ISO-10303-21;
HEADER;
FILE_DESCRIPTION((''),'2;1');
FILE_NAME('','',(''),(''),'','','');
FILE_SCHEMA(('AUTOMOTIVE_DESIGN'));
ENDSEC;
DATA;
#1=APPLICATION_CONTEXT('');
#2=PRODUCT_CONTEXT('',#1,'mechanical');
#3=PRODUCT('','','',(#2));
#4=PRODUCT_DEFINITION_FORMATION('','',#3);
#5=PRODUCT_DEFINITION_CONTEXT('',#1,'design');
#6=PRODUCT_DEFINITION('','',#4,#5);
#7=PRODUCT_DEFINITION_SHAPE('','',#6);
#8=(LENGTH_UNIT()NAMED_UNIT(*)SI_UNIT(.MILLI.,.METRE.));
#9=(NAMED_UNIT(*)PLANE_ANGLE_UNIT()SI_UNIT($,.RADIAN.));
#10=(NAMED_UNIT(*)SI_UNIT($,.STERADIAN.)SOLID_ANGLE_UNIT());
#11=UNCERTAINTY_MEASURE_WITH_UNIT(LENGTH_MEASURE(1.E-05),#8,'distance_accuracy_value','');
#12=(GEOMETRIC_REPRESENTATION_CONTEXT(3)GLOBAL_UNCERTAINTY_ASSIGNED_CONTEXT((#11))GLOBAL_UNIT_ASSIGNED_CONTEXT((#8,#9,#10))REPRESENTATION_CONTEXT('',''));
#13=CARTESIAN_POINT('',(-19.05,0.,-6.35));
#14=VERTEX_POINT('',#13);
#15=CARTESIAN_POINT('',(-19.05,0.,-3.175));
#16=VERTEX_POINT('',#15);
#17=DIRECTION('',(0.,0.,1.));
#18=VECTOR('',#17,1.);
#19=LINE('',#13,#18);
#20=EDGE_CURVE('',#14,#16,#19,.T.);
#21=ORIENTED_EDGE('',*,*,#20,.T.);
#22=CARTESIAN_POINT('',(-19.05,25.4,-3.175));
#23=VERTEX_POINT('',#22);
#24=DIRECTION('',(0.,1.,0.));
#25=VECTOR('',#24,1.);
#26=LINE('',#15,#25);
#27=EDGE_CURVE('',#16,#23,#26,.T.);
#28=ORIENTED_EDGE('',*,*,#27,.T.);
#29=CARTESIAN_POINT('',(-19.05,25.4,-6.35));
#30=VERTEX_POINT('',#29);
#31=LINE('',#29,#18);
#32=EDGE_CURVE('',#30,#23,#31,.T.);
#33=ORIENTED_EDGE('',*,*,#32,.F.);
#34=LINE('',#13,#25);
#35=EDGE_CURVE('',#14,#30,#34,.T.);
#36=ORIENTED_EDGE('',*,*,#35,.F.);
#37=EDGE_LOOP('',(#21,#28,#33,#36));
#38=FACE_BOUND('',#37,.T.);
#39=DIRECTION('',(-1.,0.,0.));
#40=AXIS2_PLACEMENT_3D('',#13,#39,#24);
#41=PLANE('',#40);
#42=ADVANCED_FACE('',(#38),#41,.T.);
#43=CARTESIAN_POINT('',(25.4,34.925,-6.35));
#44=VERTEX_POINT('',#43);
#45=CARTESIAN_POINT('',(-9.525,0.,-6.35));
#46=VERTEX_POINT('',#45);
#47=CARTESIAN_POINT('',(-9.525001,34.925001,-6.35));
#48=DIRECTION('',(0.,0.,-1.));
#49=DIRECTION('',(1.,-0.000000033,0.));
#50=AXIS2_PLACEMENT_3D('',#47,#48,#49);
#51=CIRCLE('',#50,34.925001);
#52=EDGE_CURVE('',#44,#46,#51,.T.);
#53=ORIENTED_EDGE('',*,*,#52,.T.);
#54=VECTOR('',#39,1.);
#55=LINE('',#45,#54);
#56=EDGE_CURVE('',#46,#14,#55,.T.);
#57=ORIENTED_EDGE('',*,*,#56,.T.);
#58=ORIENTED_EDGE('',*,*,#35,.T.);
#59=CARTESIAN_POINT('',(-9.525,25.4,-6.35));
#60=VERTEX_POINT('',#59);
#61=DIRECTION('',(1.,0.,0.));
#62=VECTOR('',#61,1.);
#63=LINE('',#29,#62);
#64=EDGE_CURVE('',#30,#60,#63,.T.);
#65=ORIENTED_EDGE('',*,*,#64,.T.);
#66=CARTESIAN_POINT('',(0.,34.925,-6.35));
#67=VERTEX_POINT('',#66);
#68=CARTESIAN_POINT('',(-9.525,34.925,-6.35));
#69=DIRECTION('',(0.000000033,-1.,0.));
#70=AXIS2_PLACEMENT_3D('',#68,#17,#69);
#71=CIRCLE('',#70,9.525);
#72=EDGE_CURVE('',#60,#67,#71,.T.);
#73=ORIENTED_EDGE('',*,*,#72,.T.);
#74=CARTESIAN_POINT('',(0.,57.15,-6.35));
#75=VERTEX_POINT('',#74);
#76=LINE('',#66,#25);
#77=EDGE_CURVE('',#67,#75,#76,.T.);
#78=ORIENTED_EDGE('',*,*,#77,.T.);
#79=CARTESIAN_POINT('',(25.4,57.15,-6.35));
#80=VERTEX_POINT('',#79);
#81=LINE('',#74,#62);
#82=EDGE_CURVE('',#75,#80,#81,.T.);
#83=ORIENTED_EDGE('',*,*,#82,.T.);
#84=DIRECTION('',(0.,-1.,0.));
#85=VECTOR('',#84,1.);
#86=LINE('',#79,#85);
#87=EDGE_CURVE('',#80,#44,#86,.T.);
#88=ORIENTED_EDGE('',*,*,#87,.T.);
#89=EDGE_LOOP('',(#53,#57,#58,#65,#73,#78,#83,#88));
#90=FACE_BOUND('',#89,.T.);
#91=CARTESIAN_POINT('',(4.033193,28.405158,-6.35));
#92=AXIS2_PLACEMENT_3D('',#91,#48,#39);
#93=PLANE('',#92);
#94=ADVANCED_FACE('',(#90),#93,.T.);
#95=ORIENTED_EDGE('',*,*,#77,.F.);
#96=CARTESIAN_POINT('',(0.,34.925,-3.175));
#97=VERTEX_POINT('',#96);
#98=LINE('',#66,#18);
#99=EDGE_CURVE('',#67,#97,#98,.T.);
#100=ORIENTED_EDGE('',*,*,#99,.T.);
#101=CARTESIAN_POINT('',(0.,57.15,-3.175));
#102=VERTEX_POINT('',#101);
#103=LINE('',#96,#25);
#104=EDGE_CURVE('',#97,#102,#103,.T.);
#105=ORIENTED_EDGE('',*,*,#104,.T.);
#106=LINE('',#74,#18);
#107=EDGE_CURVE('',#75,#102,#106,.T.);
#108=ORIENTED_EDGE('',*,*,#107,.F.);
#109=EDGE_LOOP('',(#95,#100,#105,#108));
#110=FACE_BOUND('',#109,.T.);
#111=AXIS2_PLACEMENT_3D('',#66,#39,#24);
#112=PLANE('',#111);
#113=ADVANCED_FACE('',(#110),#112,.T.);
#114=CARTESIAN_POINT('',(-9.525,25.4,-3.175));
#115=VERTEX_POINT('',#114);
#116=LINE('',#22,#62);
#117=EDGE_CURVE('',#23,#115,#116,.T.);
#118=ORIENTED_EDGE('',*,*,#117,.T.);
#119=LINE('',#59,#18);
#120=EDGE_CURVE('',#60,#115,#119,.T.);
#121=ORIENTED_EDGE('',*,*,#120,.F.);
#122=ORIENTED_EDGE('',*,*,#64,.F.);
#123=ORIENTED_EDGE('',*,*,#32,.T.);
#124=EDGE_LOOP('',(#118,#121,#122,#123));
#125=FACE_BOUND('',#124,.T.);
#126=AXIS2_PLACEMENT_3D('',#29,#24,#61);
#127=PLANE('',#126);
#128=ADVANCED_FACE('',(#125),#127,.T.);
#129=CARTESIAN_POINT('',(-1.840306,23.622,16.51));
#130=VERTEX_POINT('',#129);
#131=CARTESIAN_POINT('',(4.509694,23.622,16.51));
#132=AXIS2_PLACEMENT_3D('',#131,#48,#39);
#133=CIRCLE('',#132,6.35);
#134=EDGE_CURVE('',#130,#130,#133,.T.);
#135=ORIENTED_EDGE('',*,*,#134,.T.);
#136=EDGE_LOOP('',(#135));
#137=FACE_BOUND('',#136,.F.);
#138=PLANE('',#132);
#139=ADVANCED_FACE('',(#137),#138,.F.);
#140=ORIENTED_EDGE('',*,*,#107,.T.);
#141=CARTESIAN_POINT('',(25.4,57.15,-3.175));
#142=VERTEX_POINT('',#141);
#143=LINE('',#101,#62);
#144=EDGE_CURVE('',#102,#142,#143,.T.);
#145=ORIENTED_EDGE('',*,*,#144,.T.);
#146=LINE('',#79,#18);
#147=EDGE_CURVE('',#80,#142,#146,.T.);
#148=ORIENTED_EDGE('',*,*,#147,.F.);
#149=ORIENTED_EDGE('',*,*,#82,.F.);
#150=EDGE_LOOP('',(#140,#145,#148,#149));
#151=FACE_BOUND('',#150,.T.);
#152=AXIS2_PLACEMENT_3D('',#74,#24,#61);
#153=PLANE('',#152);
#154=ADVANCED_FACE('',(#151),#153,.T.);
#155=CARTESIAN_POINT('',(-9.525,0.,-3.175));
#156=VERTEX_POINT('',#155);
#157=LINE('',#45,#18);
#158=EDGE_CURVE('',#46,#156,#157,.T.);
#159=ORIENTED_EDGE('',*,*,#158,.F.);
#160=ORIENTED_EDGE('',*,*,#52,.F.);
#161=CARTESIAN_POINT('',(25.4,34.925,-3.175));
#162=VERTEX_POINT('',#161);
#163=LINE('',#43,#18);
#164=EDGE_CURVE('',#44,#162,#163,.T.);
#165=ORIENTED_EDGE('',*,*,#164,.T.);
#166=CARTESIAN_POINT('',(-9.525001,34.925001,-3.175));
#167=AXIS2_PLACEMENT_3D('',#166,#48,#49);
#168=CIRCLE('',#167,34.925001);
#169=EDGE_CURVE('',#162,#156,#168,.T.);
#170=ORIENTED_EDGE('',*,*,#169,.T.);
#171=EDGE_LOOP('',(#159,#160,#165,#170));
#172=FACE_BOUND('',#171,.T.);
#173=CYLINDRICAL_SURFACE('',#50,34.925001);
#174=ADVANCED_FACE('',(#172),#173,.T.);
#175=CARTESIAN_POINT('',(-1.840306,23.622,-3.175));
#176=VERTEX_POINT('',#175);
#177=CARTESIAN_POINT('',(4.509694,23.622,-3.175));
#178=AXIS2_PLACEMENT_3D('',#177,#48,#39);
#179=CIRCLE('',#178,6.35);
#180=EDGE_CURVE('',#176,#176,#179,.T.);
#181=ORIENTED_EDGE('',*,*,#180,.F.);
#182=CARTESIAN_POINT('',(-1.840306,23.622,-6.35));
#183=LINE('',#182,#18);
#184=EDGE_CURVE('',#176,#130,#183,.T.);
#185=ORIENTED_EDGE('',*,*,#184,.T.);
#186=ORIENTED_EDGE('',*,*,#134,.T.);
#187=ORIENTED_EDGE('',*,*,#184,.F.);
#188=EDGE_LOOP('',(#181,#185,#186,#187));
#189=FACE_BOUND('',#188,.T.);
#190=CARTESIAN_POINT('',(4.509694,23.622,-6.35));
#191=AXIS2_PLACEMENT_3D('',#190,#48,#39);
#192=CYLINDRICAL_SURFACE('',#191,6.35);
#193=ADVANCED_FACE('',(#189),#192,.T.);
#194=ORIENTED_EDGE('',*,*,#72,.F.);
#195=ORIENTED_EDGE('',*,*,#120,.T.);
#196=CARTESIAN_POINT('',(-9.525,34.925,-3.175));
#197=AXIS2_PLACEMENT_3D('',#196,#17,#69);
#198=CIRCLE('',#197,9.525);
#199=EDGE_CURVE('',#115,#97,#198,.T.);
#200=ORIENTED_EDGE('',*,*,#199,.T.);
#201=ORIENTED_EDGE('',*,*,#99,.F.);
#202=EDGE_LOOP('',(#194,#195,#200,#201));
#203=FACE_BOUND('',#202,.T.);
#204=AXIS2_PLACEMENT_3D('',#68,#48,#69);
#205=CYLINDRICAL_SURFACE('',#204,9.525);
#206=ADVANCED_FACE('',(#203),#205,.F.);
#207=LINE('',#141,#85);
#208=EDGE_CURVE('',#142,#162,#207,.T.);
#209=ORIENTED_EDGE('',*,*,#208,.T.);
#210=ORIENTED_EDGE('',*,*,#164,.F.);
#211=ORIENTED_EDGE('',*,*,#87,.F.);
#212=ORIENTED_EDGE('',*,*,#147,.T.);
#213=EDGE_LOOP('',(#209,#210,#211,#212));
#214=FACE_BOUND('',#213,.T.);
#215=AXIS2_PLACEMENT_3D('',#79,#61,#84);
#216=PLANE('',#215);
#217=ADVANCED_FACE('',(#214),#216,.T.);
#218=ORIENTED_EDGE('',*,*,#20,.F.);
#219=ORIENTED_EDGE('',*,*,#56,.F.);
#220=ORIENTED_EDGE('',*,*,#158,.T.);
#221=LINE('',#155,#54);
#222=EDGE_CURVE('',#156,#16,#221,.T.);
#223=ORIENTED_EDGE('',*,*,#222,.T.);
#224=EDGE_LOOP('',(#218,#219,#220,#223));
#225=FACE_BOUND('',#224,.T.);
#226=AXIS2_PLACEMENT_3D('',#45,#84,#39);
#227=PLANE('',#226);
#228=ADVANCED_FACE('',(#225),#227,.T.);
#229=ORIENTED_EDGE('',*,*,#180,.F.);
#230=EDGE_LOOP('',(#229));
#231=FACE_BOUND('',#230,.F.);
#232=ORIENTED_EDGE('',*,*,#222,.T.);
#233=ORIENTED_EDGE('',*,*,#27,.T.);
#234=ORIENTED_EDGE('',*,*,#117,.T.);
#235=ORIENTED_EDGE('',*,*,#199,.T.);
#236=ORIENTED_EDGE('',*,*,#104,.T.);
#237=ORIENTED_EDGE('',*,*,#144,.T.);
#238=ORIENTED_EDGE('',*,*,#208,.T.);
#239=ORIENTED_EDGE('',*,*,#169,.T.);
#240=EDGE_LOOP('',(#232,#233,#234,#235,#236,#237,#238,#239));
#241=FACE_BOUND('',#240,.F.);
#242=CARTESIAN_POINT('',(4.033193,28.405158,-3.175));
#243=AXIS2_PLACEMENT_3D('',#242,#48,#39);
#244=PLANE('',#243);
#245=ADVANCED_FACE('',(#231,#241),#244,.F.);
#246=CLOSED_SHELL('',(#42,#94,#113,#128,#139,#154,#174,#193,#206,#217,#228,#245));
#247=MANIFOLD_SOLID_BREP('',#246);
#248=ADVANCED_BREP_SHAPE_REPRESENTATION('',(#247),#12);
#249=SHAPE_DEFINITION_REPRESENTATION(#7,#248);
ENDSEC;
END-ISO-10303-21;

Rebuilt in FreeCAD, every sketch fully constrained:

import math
import FreeCAD as App
import Part
import Sketcher

V = App.Vector
Q = App.Units.Quantity

doc = App.newDocument("Part")
params = doc.addObject("Spreadsheet::Sheet", "Params")
for row, (alias, value) in enumerate([
    ("sketch1_diameter", "0.5 in"),
    ("pad1_length", "0.9 in"),
    ("sketch2_diameter", "0.5 in"),
    ("sketch2_width", "1 in"),
    ("sketch2_radius", "1.375 in"),
    ("sketch2_width2", "0.375 in"),
    ("sketch2_height", "0.875 in"),
    ("pad2_length", "0.125 in"),
], start=1):
    params.set(f"A{row}", alias)
    params.set(f"B{row}", "=" + value)
    params.setAlias(f"B{row}", alias)

body = doc.addObject("PartDesign::Body", "Body")

sketch1 = body.newObject("Sketcher::SketchObject", "Sketch")
sketch1.AttachmentSupport = (doc.getObject("XY_Plane"), [""])
sketch1.MapMode = "FlatFace"
sketch1.addGeometry(Part.Circle(V(-4.509694, 23.622, 0), V(0, 0, 1), 6.35), False)
sketch1.addConstraint([
    Sketcher.Constraint("Diameter", 0, Q("0.5 in")),
    Sketcher.Constraint("DistanceY", -1, 1, 0, 3, Q("0.93 in")),
    Sketcher.Constraint("DistanceX", 0, 3, -1, 1, 4.509694),
])
sketch1.setExpression("Constraints[0]", "Params.sketch1_diameter")
pad1 = body.newObject("PartDesign::Pad", "Pad")
pad1.Profile = sketch1
pad1.setExpression("Length", "Params.pad1_length")
pad1.Reversed = True

sketch2 = body.newObject("Sketcher::SketchObject", "Sketch001")
sketch2.AttachmentSupport = (doc.getObject("XY_Plane"), [""])
sketch2.MapMode = "FlatFace"
sketch2.addGeometry([
    Part.LineSegment(V(0, 57.15, 0), V(-25.4, 57.15, 0)),
    Part.LineSegment(V(-25.4, 57.15, 0), V(-25.4, 34.925, 0)),
    Part.ArcOfCircle(Part.Circle(V(9.525001, 34.925001, 0), V(0, 0, 1), 34.925001), math.radians(-179.999998), math.radians(-90.000002)),
    Part.LineSegment(V(9.525, 0, 0), V(19.05, 0, 0)),
    Part.LineSegment(V(19.05, 0, 0), V(19.05, 25.4, 0)),
    Part.LineSegment(V(19.05, 25.4, 0), V(9.525, 25.4, 0)),
    Part.ArcOfCircle(Part.Circle(V(9.525, 34.925, 0), V(0, 0, 1), 9.525), math.radians(-179.999998), math.radians(-90.000002)),
    Part.LineSegment(V(0, 34.925, 0), V(0, 57.15, 0)),
    Part.Circle(V(-4.509694, 23.622, 0), V(0, 0, 1), 6.35),
], False)
sketch2.addConstraint([
    Sketcher.Constraint("Coincident", 0, 2, 1, 1),
    Sketcher.Constraint("Tangent", 1, 2, 2, 1),
    Sketcher.Constraint("Tangent", 2, 2, 3, 1),
    Sketcher.Constraint("Coincident", 3, 2, 4, 1),
    Sketcher.Constraint("Coincident", 4, 2, 5, 1),
    Sketcher.Constraint("Tangent", 5, 2, 6, 2),
    Sketcher.Constraint("Tangent", 6, 1, 7, 1),
    Sketcher.Constraint("Coincident", 7, 2, 0, 1),
    Sketcher.Constraint("Horizontal", 0),
    Sketcher.Constraint("Vertical", 1),
    Sketcher.Constraint("Horizontal", 3),
    Sketcher.Constraint("Vertical", 4),
    Sketcher.Constraint("Horizontal", 5),
    Sketcher.Constraint("Vertical", 7),
    Sketcher.Constraint("Coincident", 6, 3, 2, 3),
    Sketcher.Constraint("PointOnObject", 2, 2, -1),
    Sketcher.Constraint("PointOnObject", 6, 1, -2),
    Sketcher.Constraint("Diameter", 8, Q("0.5 in")),
    Sketcher.Constraint("DistanceX", 0, 2, 0, 1, Q("1 in")),
    Sketcher.Constraint("Radius", 2, Q("1.375 in")),
    Sketcher.Constraint("DistanceX", 3, 1, 3, 2, Q("0.375 in")),
    Sketcher.Constraint("DistanceY", 1, 2, 1, 1, Q("0.875 in")),
    Sketcher.Constraint("DistanceY", -1, 1, 8, 3, Q("0.93 in")),
    Sketcher.Constraint("DistanceX", 8, 3, -1, 1, 4.509694),
])
sketch2.setExpression("Constraints[17]", "Params.sketch2_diameter")
sketch2.setExpression("Constraints[18]", "Params.sketch2_width")
sketch2.setExpression("Constraints[19]", "Params.sketch2_radius")
sketch2.setExpression("Constraints[20]", "Params.sketch2_width2")
sketch2.setExpression("Constraints[21]", "Params.sketch2_height")
pad2 = body.newObject("PartDesign::Pad", "Pad001")
pad2.Profile = sketch2
pad2.setExpression("Length", "Params.pad2_length")
pad2.Reversed = True
body2 = doc.addObject("PartDesign::Body", "Body001")
doc.recompute()

body.Placement = App.Placement(V(0, 0, -6.35), App.Rotation(V(0, 1, 0), 180))
boolean = body2.newObject("PartDesign::Boolean", "Boolean")
boolean.Type = "Fuse"
boolean.addObjects([body])

doc.recompute()
